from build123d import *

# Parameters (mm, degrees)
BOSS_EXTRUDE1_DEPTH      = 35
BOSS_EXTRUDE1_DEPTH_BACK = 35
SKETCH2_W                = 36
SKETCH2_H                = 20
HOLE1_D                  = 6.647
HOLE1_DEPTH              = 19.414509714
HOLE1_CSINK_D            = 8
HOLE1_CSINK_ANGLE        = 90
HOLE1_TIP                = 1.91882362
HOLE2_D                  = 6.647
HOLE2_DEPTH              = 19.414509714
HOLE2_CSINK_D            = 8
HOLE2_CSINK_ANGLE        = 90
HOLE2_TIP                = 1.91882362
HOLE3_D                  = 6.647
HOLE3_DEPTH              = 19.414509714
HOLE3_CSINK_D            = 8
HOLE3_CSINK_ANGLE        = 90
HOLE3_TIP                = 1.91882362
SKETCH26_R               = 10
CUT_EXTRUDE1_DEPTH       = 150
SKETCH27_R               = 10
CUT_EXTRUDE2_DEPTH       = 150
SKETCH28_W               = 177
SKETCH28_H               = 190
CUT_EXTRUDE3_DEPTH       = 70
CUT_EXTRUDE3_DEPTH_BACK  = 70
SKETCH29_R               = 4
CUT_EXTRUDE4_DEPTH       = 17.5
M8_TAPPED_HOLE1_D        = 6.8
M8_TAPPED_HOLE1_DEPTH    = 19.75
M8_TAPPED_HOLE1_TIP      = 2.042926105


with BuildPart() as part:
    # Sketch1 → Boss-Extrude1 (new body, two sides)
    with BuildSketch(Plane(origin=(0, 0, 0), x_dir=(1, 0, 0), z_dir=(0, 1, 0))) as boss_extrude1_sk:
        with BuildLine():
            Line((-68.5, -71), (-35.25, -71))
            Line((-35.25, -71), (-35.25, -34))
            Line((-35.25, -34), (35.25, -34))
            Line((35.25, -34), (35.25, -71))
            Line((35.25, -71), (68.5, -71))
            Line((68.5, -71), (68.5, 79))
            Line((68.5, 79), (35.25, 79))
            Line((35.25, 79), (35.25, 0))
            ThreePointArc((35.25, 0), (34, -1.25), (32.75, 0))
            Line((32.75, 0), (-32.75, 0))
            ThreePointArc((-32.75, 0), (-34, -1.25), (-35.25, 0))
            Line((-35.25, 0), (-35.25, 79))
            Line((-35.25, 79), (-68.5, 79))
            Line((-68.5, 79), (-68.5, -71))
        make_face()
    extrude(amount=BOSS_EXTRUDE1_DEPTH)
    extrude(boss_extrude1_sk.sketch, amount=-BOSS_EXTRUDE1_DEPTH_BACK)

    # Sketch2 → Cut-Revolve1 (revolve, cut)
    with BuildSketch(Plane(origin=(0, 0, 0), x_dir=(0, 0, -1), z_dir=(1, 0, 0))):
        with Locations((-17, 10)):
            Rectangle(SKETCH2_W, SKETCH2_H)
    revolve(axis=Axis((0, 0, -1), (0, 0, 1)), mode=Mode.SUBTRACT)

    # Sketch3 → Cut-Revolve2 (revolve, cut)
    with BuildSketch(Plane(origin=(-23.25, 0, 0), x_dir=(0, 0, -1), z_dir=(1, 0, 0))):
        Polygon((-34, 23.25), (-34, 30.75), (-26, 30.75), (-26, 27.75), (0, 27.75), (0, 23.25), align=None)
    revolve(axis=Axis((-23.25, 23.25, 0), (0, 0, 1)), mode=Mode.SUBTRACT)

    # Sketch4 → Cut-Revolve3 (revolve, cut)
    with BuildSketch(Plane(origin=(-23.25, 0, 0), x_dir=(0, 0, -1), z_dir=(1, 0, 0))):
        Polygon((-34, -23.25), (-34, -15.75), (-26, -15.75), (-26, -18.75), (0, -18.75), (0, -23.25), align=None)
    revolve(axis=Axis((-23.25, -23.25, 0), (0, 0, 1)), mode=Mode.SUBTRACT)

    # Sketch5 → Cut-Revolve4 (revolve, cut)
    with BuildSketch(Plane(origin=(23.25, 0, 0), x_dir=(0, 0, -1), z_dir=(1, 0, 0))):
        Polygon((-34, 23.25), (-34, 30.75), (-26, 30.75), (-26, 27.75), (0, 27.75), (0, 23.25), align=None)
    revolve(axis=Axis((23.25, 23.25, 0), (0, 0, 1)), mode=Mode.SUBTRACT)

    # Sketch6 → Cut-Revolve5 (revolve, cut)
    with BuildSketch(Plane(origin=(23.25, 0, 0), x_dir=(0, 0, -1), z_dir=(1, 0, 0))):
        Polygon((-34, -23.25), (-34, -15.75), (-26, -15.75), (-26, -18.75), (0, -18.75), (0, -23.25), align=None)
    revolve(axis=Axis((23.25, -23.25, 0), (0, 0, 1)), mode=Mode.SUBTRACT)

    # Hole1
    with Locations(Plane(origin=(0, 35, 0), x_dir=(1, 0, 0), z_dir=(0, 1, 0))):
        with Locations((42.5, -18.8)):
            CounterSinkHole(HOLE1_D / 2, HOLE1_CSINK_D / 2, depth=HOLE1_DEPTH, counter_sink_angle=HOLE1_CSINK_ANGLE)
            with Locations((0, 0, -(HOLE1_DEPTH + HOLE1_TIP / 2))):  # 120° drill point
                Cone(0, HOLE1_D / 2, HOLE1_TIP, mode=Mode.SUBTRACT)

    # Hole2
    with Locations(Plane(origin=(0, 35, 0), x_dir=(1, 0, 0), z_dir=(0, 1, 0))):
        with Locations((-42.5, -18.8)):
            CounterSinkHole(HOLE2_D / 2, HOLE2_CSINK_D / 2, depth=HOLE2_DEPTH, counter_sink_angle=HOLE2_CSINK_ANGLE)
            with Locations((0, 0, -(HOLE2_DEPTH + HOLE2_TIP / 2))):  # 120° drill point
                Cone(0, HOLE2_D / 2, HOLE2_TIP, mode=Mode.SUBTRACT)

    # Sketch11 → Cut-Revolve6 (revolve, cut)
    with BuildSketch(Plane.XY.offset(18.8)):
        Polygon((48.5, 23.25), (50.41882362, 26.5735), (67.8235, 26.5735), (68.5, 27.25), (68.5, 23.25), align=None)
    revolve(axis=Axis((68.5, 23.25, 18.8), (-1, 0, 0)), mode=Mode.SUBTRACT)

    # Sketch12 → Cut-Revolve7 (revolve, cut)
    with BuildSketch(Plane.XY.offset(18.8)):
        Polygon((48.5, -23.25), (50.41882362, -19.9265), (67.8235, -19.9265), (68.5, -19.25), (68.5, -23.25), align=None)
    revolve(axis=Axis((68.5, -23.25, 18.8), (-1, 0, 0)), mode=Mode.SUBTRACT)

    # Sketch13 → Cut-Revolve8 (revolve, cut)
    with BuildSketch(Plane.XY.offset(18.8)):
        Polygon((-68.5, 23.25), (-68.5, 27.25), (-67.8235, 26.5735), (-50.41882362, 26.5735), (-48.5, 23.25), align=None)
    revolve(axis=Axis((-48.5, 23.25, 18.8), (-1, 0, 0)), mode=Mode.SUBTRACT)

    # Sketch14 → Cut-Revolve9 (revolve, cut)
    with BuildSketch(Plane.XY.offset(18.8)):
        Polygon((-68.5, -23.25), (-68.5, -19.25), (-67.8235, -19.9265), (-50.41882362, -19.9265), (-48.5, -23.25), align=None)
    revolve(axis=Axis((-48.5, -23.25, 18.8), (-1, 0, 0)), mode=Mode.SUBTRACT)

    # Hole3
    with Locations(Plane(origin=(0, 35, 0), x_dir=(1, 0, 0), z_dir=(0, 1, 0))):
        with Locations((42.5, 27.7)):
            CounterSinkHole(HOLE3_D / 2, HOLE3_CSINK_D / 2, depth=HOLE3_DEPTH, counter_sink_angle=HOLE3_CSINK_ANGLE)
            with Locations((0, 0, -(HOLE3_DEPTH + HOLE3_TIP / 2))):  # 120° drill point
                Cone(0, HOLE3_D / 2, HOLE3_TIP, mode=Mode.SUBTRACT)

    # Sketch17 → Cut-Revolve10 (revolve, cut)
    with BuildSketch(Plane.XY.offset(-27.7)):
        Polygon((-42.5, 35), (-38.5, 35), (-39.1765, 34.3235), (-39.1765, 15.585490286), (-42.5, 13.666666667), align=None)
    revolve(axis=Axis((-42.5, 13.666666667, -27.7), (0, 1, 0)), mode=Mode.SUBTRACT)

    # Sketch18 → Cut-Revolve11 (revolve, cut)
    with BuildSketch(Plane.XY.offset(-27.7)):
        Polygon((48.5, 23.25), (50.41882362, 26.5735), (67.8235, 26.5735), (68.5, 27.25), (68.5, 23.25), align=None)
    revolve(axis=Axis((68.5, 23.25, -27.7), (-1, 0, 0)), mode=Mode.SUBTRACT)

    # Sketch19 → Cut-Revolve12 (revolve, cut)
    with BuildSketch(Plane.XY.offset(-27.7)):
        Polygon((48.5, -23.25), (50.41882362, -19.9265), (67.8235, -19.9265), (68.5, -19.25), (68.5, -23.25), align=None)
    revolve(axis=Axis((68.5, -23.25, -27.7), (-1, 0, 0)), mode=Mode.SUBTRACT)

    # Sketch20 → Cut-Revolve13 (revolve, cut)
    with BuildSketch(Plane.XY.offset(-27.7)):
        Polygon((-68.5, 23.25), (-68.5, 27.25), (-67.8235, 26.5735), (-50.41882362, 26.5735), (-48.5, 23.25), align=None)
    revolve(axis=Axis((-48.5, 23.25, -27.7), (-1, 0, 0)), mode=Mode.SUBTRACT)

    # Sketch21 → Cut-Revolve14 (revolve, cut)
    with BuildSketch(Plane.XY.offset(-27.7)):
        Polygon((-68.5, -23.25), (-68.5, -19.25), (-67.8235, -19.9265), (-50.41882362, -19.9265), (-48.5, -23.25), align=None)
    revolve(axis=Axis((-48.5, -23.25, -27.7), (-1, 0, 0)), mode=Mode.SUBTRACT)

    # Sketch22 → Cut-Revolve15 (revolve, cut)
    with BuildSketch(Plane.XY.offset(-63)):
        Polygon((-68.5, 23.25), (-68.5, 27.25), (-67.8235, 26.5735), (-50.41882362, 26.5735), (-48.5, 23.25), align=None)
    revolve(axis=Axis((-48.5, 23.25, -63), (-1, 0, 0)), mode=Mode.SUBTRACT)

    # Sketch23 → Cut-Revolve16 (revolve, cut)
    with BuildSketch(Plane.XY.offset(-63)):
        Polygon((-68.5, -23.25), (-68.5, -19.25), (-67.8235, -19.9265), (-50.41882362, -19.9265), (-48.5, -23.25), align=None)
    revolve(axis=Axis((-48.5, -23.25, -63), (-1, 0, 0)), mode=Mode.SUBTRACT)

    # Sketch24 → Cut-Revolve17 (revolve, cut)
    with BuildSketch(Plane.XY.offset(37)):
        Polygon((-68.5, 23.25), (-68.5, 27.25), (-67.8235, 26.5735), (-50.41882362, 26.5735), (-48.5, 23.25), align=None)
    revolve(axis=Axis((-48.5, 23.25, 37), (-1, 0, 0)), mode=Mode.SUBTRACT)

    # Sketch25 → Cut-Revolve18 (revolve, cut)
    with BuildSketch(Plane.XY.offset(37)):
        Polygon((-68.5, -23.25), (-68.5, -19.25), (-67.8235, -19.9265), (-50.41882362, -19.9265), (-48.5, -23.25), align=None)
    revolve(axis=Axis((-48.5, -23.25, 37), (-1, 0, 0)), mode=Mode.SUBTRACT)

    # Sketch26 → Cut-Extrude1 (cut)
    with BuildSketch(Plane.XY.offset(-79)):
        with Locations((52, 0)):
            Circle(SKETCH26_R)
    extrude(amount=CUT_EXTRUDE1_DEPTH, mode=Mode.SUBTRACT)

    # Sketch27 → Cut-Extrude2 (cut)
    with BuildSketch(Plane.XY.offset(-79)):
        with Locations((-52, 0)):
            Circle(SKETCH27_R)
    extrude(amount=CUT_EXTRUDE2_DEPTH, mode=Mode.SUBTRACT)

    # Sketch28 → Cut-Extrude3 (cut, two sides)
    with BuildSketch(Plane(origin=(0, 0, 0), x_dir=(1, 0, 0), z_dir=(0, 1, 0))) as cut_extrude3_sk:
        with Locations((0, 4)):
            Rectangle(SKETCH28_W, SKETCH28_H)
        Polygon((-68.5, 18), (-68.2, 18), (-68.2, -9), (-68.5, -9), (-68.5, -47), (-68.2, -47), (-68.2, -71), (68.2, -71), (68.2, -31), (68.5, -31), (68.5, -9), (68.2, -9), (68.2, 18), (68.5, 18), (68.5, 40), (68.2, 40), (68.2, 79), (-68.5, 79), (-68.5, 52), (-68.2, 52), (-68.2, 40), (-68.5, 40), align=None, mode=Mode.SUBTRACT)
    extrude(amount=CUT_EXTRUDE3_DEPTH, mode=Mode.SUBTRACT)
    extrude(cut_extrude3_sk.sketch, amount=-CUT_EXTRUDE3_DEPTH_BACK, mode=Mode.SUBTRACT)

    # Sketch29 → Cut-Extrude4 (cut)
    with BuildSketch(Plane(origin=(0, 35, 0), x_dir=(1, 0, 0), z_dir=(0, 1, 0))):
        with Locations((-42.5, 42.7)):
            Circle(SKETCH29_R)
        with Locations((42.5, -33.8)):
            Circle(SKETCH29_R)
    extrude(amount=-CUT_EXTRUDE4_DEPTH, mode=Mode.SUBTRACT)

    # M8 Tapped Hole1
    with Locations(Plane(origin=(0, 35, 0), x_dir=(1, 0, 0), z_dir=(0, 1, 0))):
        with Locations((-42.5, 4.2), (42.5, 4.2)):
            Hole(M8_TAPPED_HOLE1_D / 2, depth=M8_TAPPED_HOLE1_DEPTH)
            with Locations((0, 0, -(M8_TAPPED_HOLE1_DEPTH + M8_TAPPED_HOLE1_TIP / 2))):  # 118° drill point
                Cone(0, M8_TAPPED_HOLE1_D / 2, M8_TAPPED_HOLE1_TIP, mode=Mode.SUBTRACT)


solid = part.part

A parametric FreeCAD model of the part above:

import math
import FreeCAD as App
import Part
import Sketcher
Q = App.Units.Quantity


def add_polygon(sketch, points):
    """Adds a closed chain of lines whose ends are joined by coincident constraints."""
    first, n = sketch.GeometryCount, len(points)
    for a, b in zip(points, points[1:] + points[:1]):
        sketch.addGeometry(Part.LineSegment(App.Vector(*a, 0), App.Vector(*b, 0)), False)
    for i in range(n):
        sketch.addConstraint(Sketcher.Constraint("Coincident", first + i, 2, first + (i + 1) % n, 1))

doc = App.newDocument("Part")
body = doc.addObject("PartDesign::Body", "Body")

sketch1 = body.newObject("Sketcher::SketchObject", "Sketch")
sketch1.AttachmentSupport = (doc.getObject("XZ_Plane"), [""])
sketch1.MapMode = "FlatFace"
sketch1.addGeometry([
    Part.LineSegment(App.Vector(-68.5, 71, 0), App.Vector(-35.2, 71, 0)),
    Part.LineSegment(App.Vector(-35.2, 71, 0), App.Vector(-35.2, 34, 0)),
    Part.LineSegment(App.Vector(-35.2, 34, 0), App.Vector(35.2, 34, 0)),
    Part.LineSegment(App.Vector(35.2, 34, 0), App.Vector(35.2, 71, 0)),
    Part.LineSegment(App.Vector(35.2, 71, 0), App.Vector(68.5, 71, 0)),
    Part.LineSegment(App.Vector(68.5, 71, 0), App.Vector(68.5, -79, 0)),
    Part.LineSegment(App.Vector(68.5, -79, 0), App.Vector(35.2, -79, 0)),
    Part.LineSegment(App.Vector(35.2, -79, 0), App.Vector(35.2, 0, 0)),
    Part.ArcOfCircle(Part.Circle(App.Vector(34, 0, 0), App.Vector(0, 0, 1), 1.2), math.radians(0), math.radians(180)),
    Part.LineSegment(App.Vector(32.8, 0, 0), App.Vector(-32.8, 0, 0)),
    Part.ArcOfCircle(Part.Circle(App.Vector(-34, 0, 0), App.Vector(0, 0, 1), 1.2), math.radians(0), math.radians(180)),
    Part.LineSegment(App.Vector(-35.2, 0, 0), App.Vector(-35.2, -79, 0)),
    Part.LineSegment(App.Vector(-35.2, -79, 0), App.Vector(-68.5, -79, 0)),
    Part.LineSegment(App.Vector(-68.5, -79, 0), App.Vector(-68.5, 71, 0)),
], False)
sketch1.addConstraint([
    Sketcher.Constraint("Coincident", 0, 2, 1, 1),
    Sketcher.Constraint("Coincident", 1, 2, 2, 1),
    Sketcher.Constraint("Coincident", 2, 2, 3, 1),
    Sketcher.Constraint("Coincident", 3, 2, 4, 1),
    Sketcher.Constraint("Coincident", 4, 2, 5, 1),
    Sketcher.Constraint("Coincident", 5, 2, 6, 1),
    Sketcher.Constraint("Coincident", 6, 2, 7, 1),
    Sketcher.Constraint("Tangent", 7, 2, 8, 1),
    Sketcher.Constraint("Coincident", 8, 2, 9, 1),
    Sketcher.Constraint("Coincident", 9, 2, 10, 1),
    Sketcher.Constraint("Tangent", 10, 2, 11, 1),
    Sketcher.Constraint("Coincident", 11, 2, 12, 1),
    Sketcher.Constraint("Coincident", 12, 2, 13, 1),
    Sketcher.Constraint("Coincident", 13, 2, 0, 1),
    Sketcher.Constraint("Horizontal", 0),
    Sketcher.Constraint("Vertical", 1),
    Sketcher.Constraint("Horizontal", 2),
    Sketcher.Constraint("Vertical", 3),
    Sketcher.Constraint("Horizontal", 4),
    Sketcher.Constraint("Vertical", 5),
    Sketcher.Constraint("Horizontal", 6),
    Sketcher.Constraint("Vertical", 7),
    Sketcher.Constraint("Horizontal", 9),
    Sketcher.Constraint("Vertical", 11),
    Sketcher.Constraint("Horizontal", 12),
    Sketcher.Constraint("Vertical", 13),
    Sketcher.Constraint("Equal", 8, 10),
    Sketcher.Constraint("Symmetric", 8, 3, 10, 3, -1, 1),
    Sketcher.Constraint("Symmetric", 0, 2, 3, 2, -2),
    Sketcher.Constraint("Symmetric", 5, 2, 12, 2, -2),
    Sketcher.Constraint("PointOnObject", 8, 3, -1),
    Sketcher.Constraint("PointOnObject", 8, 2, -1),
    Sketcher.Constraint("Vertical", 3, 2, 6, 2),
    Sketcher.Constraint("DistanceY", 1, 2, 1, 1, 37.0),
    Sketcher.Constraint("DistanceY", 5, 2, 5, 1, 150.0),
    Sketcher.Constraint("DistanceY", 7, 1, 7, 2, 79.0),
    Sketcher.Constraint("Radius", 8, 1.25),
    Sketcher.Constraint("DistanceX", 2, 1, 2, 2, 70.5),
    Sketcher.Constraint("DistanceX", 0, 1, 0, 2, 33.25),
])
pad1 = body.newObject("PartDesign::Pad", "Pad")
pad1.Profile = sketch1
pad1.Type = "TwoLengths"
pad1.Length = 35
pad1.Length2 = 35
pad1.Reversed = True

sketch2 = body.newObject("Sketcher::SketchObject", "Sketch001")
sketch2.AttachmentSupport = (doc.getObject("YZ_Plane"), [""])
sketch2.MapMode = "FlatFace"
add_polygon(sketch2, [(20, 35), (0, 35), (0, -1), (20, -1)])
sketch2.addConstraint([
    Sketcher.Constraint("Horizontal", 0),
    Sketcher.Constraint("Vertical", 1),
    Sketcher.Constraint("Horizontal", 2),
    Sketcher.Constraint("Vertical", 3),
    Sketcher.Constraint("PointOnObject", 0, 2, -2),
    Sketcher.Constraint("DistanceX", 0, 2, 0, 1, 20.0),
    Sketcher.Constraint("DistanceY", 1, 2, 1, 1, 36.0),
    Sketcher.Constraint("DistanceY", -1, 1, 0, 2, 35.0),
])
groove = body.newObject("PartDesign::Groove", "Groove")
groove.Profile = sketch2
groove.ReferenceAxis = (sketch2, ["V_Axis"])
groove.Angle = 360

sketch3 = body.newObject("Sketcher::SketchObject", "Sketch002")
sketch3.AttachmentSupport = (doc.getObject("YZ_Plane"), [""])
sketch3.MapMode = "FlatFace"
sketch3.AttachmentOffset = App.Placement(App.Vector(0, 0, -23.25), App.Rotation())
add_polygon(sketch3, [(30.8, 34), (23.2, 34), (23.2, 0), (27.8, 0), (27.8, 26), (30.8, 26)])
sketch3.addGeometry(Part.LineSegment(App.Vector(23.2, 0, 0), App.Vector(23.2, 34, 0)), True)
sketch3.addConstraint([
    Sketcher.Constraint("Horizontal", 0),
    Sketcher.Constraint("Vertical", 1),
    Sketcher.Constraint("Horizontal", 2),
    Sketcher.Constraint("Vertical", 3),
    Sketcher.Constraint("Horizontal", 4),
    Sketcher.Constraint("Vertical", 5),
    Sketcher.Constraint("Vertical", 6),
    Sketcher.Constraint("Coincident", 6, 1, 1, 2),
    Sketcher.Constraint("PointOnObject", 1, 2, -1),
    Sketcher.Constraint("Horizontal", 5, 2, 6, 2),
    Sketcher.Constraint("DistanceX", 4, 1, 4, 2, 3.0),
    Sketcher.Constraint("DistanceY", 1, 2, 1, 1, 34.0),
    Sketcher.Constraint("DistanceY", 3, 1, 3, 2, 26.0),
    Sketcher.Constraint("DistanceX", 0, 2, 0, 1, 7.5),
    Sketcher.Constraint("DistanceX", -1, 1, 0, 2, 23.25),
])
groove2 = body.newObject("PartDesign::Groove", "Groove001")
groove2.Profile = sketch3
groove2.ReferenceAxis = (sketch3, ["Axis0"])
groove2.Angle = 360

sketch4 = body.newObject("Sketcher::SketchObject", "Sketch003")
sketch4.AttachmentSupport = (doc.getObject("YZ_Plane"), [""])
sketch4.MapMode = "FlatFace"
sketch4.AttachmentOffset = App.Placement(App.Vector(0, 0, -23.25), App.Rotation())
add_polygon(sketch4, [(-15.8, 34), (-23.2, 34), (-23.2, 0), (-18.8, 0), (-18.8, 26), (-15.8, 26)])
sketch4.addGeometry(Part.LineSegment(App.Vector(-23.2, 0, 0), App.Vector(-23.2, 34, 0)), True)
sketch4.addConstraint([
    Sketcher.Constraint("Horizontal", 0),
    Sketcher.Constraint("Vertical", 1),
    Sketcher.Constraint("Horizontal", 2),
    Sketcher.Constraint("Vertical", 3),
    Sketcher.Constraint("Horizontal", 4),
    Sketcher.Constraint("Vertical", 5),
    Sketcher.Constraint("Vertical", 6),
    Sketcher.Constraint("Coincident", 6, 1, 1, 2),
    Sketcher.Constraint("PointOnObject", 1, 2, -1),
    Sketcher.Constraint("Horizontal", 5, 2, 6, 2),
    Sketcher.Constraint("DistanceX", 4, 1, 4, 2, 3.0),
    Sketcher.Constraint("DistanceY", 1, 2, 1, 1, 34.0),
    Sketcher.Constraint("DistanceY", 3, 1, 3, 2, 26.0),
    Sketcher.Constraint("DistanceX", 0, 2, 0, 1, 7.5),
    Sketcher.Constraint("DistanceX", 0, 2, -1, 1, 23.25),
])
groove3 = body.newObject("PartDesign::Groove", "Groove002")
groove3.Profile = sketch4
groove3.ReferenceAxis = (sketch4, ["Axis0"])
groove3.Angle = 360

sketch5 = body.newObject("Sketcher::SketchObject", "Sketch004")
sketch5.AttachmentSupport = (doc.getObject("YZ_Plane"), [""])
sketch5.MapMode = "FlatFace"
sketch5.AttachmentOffset = App.Placement(App.Vector(0, 0, 23.25), App.Rotation())
add_polygon(sketch5, [(30.8, 34), (23.2, 34), (23.2, 0), (27.8, 0), (27.8, 26), (30.8, 26)])
sketch5.addGeometry(Part.LineSegment(App.Vector(23.2, 0, 0), App.Vector(23.2, 34, 0)), True)
sketch5.addConstraint([
    Sketcher.Constraint("Horizontal", 0),
    Sketcher.Constraint("Vertical", 1),
    Sketcher.Constraint("Horizontal", 2),
    Sketcher.Constraint("Vertical", 3),
    Sketcher.Constraint("Horizontal", 4),
    Sketcher.Constraint("Vertical", 5),
    Sketcher.Constraint("Vertical", 6),
    Sketcher.Constraint("Coincident", 6, 1, 1, 2),
    Sketcher.Constraint("PointOnObject", 1, 2, -1),
    Sketcher.Constraint("Horizontal", 5, 2, 6, 2),
    Sketcher.Constraint("DistanceX", 4, 1, 4, 2, 3.0),
    Sketcher.Constraint("DistanceY", 1, 2, 1, 1, 34.0),
    Sketcher.Constraint("DistanceY", 3, 1, 3, 2, 26.0),
    Sketcher.Constraint("DistanceX", 0, 2, 0, 1, 7.5),
    Sketcher.Constraint("DistanceX", -1, 1, 0, 2, 23.25),
])
groove4 = body.newObject("PartDesign::Groove", "Groove003")
groove4.Profile = sketch5
groove4.ReferenceAxis = (sketch5, ["Axis0"])
groove4.Angle = 360

sketch6 = body.newObject("Sketcher::SketchObject", "Sketch005")
sketch6.AttachmentSupport = (doc.getObject("YZ_Plane"), [""])
sketch6.MapMode = "FlatFace"
sketch6.AttachmentOffset = App.Placement(App.Vector(0, 0, 23.25), App.Rotation())
add_polygon(sketch6, [(-15.8, 34), (-23.2, 34), (-23.2, 0), (-18.8, 0), (-18.8, 26), (-15.8, 26)])
sketch6.addGeometry(Part.LineSegment(App.Vector(-23.2, 0, 0), App.Vector(-23.2, 34, 0)), True)
sketch6.addConstraint([
    Sketcher.Constraint("Horizontal", 0),
    Sketcher.Constraint("Vertical", 1),
    Sketcher.Constraint("Horizontal", 2),
    Sketcher.Constraint("Vertical", 3),
    Sketcher.Constraint("Horizontal", 4),
    Sketcher.Constraint("Vertical", 5),
    Sketcher.Constraint("Vertical", 6),
    Sketcher.Constraint("Coincident", 6, 1, 1, 2),
    Sketcher.Constraint("PointOnObject", 1, 2, -1),
    Sketcher.Constraint("Horizontal", 5, 2, 6, 2),
    Sketcher.Constraint("DistanceX", 4, 1, 4, 2, 3.0),
    Sketcher.Constraint("DistanceY", 1, 2, 1, 1, 34.0),
    Sketcher.Constraint("DistanceY", 3, 1, 3, 2, 26.0),
    Sketcher.Constraint("DistanceX", 0, 2, 0, 1, 7.5),
    Sketcher.Constraint("DistanceX", 0, 2, -1, 1, 23.25),
])
groove5 = body.newObject("PartDesign::Groove", "Groove004")
groove5.Profile = sketch6
groove5.ReferenceAxis = (sketch6, ["Axis0"])
groove5.Angle = 360

sketch7 = body.newObject("Sketcher::SketchObject", "Sketch006")
sketch7.AttachmentSupport = (doc.getObject("XZ_Plane"), [""])
sketch7.MapMode = "FlatFace"
sketch7.AttachmentOffset = App.Placement(App.Vector(0, 0, -35), App.Rotation())
sketch7.addGeometry(Part.Circle(App.Vector(42.5, 18.8, 0), App.Vector(0, 0, 1), 3.3), False)
sketch7.addConstraint([
    Sketcher.Constraint("Diameter", 0, 6.647),
    Sketcher.Constraint("DistanceX", -1, 1, 0, 3, 42.5),
    Sketcher.Constraint("DistanceY", -1, 1, 0, 3, 18.8),
])
doc.recompute()
hole = body.newObject("PartDesign::Hole", "Hole")
hole.Profile = sketch7
hole.ThreadType = "None"
hole.Diameter = 6.647
hole.DepthType = "Dimension"
hole.Depth = 19.41451
hole.DrillPoint = "Angled"
hole.DrillPointAngle = 120
hole.HoleCutType = "Countersink"
hole.HoleCutDiameter = 8
hole.HoleCutCountersinkAngle = 90
hole.Reversed = True

sketch8 = body.newObject("Sketcher::SketchObject", "Sketch007")
sketch8.AttachmentSupport = (doc.getObject("XZ_Plane"), [""])
sketch8.MapMode = "FlatFace"
sketch8.AttachmentOffset = App.Placement(App.Vector(0, 0, -35), App.Rotation())
sketch8.addGeometry(Part.Circle(App.Vector(-42.5, 18.8, 0), App.Vector(0, 0, 1), 3.3), False)
sketch8.addConstraint([
    Sketcher.Constraint("Diameter", 0, 6.647),
    Sketcher.Constraint("DistanceX", 0, 3, -1, 1, 42.5),
    Sketcher.Constraint("DistanceY", -1, 1, 0, 3, 18.8),
])
doc.recompute()
hole2 = body.newObject("PartDesign::Hole", "Hole001")
hole2.Profile = sketch8
hole2.ThreadType = "None"
hole2.Diameter = 6.647
hole2.DepthType = "Dimension"
hole2.Depth = 19.41451
hole2.DrillPoint = "Angled"
hole2.DrillPointAngle = 120
hole2.HoleCutType = "Countersink"
hole2.HoleCutDiameter = 8
hole2.HoleCutCountersinkAngle = 90
hole2.Reversed = True

sketch9 = body.newObject("Sketcher::SketchObject", "Sketch008")
sketch9.AttachmentSupport = (doc.getObject("XY_Plane"), [""])
sketch9.MapMode = "FlatFace"
sketch9.AttachmentOffset = App.Placement(App.Vector(0, 0, 18.8), App.Rotation())
add_polygon(sketch9, [(50.4, 26.6), (48.5, 23.2), (68.5, 23.2), (68.5, 27.2), (67.8, 26.6)])
sketch9.addGeometry(Part.LineSegment(App.Vector(68.5, 23.2, 0), App.Vector(48.5, 23.2, 0)), True)
sketch9.addConstraint([
    Sketcher.Constraint("Horizontal", 1),
    Sketcher.Constraint("Vertical", 2),
    Sketcher.Constraint("Horizontal", 4),
    Sketcher.Constraint("Horizontal", 5),
    Sketcher.Constraint("Coincident", 5, 1, 1, 2),
    Sketcher.Constraint("Equal", 1, 5),
    Sketcher.Constraint("DistanceX", 1, 1, 1, 2, 20.0),
    Sketcher.Constraint("DistanceY", 2, 1, 2, 2, 4.0),
    Sketcher.Constraint("Angle", 0, Q("-120 deg")),
    Sketcher.Constraint("Angle", 3, Q("-135 deg")),
    Sketcher.Constraint("DistanceX", -1, 1, 0, 2, 48.5),
    Sketcher.Constraint("DistanceY", -1, 1, 0, 2, 23.25),
    Sketcher.Constraint("DistanceX", -1, 1, 3, 2, 67.8235),
])
groove6 = body.newObject("PartDesign::Groove", "Groove005")
groove6.Profile = sketch9
groove6.ReferenceAxis = (sketch9, ["Axis0"])
groove6.Angle = 360

sketch10 = body.newObject("Sketcher::SketchObject", "Sketch009")
sketch10.AttachmentSupport = (doc.getObject("XY_Plane"), [""])
sketch10.MapMode = "FlatFace"
sketch10.AttachmentOffset = App.Placement(App.Vector(0, 0, 18.8), App.Rotation())
add_polygon(sketch10, [(50.4, -19.9), (48.5, -23.2), (68.5, -23.2), (68.5, -19.2), (67.8, -19.9)])
sketch10.addGeometry(Part.LineSegment(App.Vector(68.5, -23.2, 0), App.Vector(48.5, -23.2, 0)), True)
sketch10.addConstraint([
    Sketcher.Constraint("Horizontal", 1),
    Sketcher.Constraint("Vertical", 2),
    Sketcher.Constraint("Horizontal", 4),
    Sketcher.Constraint("Horizontal", 5),
    Sketcher.Constraint("Coincident", 5, 1, 1, 2),
    Sketcher.Constraint("Equal", 1, 5),
    Sketcher.Constraint("DistanceX", 1, 1, 1, 2, 20.0),
    Sketcher.Constraint("DistanceY", 2, 1, 2, 2, 4.0),
    Sketcher.Constraint("Angle", 0, Q("-120 deg")),
    Sketcher.Constraint("Angle", 3, Q("-135 deg")),
    Sketcher.Constraint("DistanceX", -1, 1, 0, 2, 48.5),
    Sketcher.Constraint("DistanceY", 0, 2, -1, 1, 23.25),
    Sketcher.Constraint("DistanceX", -1, 1, 3, 2, 67.8235),
])
groove7 = body.newObject("PartDesign::Groove", "Groove006")
groove7.Profile = sketch10
groove7.ReferenceAxis = (sketch10, ["Axis0"])
groove7.Angle = 360

sketch11 = body.newObject("Sketcher::SketchObject", "Sketch010")
sketch11.AttachmentSupport = (doc.getObject("XY_Plane"), [""])
sketch11.MapMode = "FlatFace"
sketch11.AttachmentOffset = App.Placement(App.Vector(0, 0, 18.8), App.Rotation())
add_polygon(sketch11, [(-68.5, 27.2), (-68.5, 23.2), (-48.5, 23.2), (-50.4, 26.6), (-67.8, 26.6)])
sketch11.addGeometry(Part.LineSegment(App.Vector(-48.5, 23.2, 0), App.Vector(-68.5, 23.2, 0)), True)
sketch11.addConstraint([
    Sketcher.Constraint("Vertical", 0),
    Sketcher.Constraint("Horizontal", 1),
    Sketcher.Constraint("Horizontal", 3),
    Sketcher.Constraint("Horizontal", 5),
    Sketcher.Constraint("Coincident", 5, 1, 1, 2),
    Sketcher.Constraint("Vertical", 4, 2, 5, 2),
    Sketcher.Constraint("DistanceX", 1, 1, 1, 2, 20.0),
    Sketcher.Constraint("DistanceY", 0, 2, 0, 1, 4.0),
    Sketcher.Constraint("Angle", 2, Q("120 deg")),
    Sketcher.Constraint("Angle", 4, Q("135 deg")),
    Sketcher.Constraint("DistanceX", 0, 2, -1, 1, 68.5),
    Sketcher.Constraint("DistanceY", -1, 1, 0, 2, 23.25),
    Sketcher.Constraint("DistanceY", -1, 1, 2, 2, 26.5735),
])
groove8 = body.newObject("PartDesign::Groove", "Groove007")
groove8.Profile = sketch11
groove8.ReferenceAxis = (sketch11, ["Axis0"])
groove8.Angle = 360

sketch12 = body.newObject("Sketcher::SketchObject", "Sketch011")
sketch12.AttachmentSupport = (doc.getObject("XY_Plane"), [""])
sketch12.MapMode = "FlatFace"
sketch12.AttachmentOffset = App.Placement(App.Vector(0, 0, 18.8), App.Rotation())
add_polygon(sketch12, [(-68.5, -19.2), (-68.5, -23.2), (-48.5, -23.2), (-50.4, -19.9), (-67.8, -19.9)])
sketch12.addGeometry(Part.LineSegment(App.Vector(-48.5, -23.2, 0), App.Vector(-68.5, -23.2, 0)), True)
sketch12.addConstraint([
    Sketcher.Constraint("Vertical", 0),
    Sketcher.Constraint("Horizontal", 1),
    Sketcher.Constraint("Horizontal", 3),
    Sketcher.Constraint("Horizontal", 5),
    Sketcher.Constraint("Coincident", 5, 1, 1, 2),
    Sketcher.Constraint("Vertical", 4, 2, 5, 2),
    Sketcher.Constraint("DistanceX", 1, 1, 1, 2, 20.0),
    Sketcher.Constraint("DistanceY", 0, 2, 0, 1, 4.0),
    Sketcher.Constraint("Angle", 2, Q("120 deg")),
    Sketcher.Constraint("Angle", 4, Q("135 deg")),
    Sketcher.Constraint("DistanceX", 0, 2, -1, 1, 68.5),
    Sketcher.Constraint("DistanceY", 0, 2, -1, 1, 23.25),
    Sketcher.Constraint("DistanceY", 2, 2, -1, 1, 19.9265),
])
groove9 = body.newObject("PartDesign::Groove", "Groove008")
groove9.Profile = sketch12
groove9.ReferenceAxis = (sketch12, ["Axis0"])
groove9.Angle = 360

sketch13 = body.newObject("Sketcher::SketchObject", "Sketch012")
sketch13.AttachmentSupport = (doc.getObject("XZ_Plane"), [""])
sketch13.MapMode = "FlatFace"
sketch13.AttachmentOffset = App.Placement(App.Vector(0, 0, -35), App.Rotation())
sketch13.addGeometry(Part.Circle(App.Vector(42.5, -27.7, 0), App.Vector(0, 0, 1), 3.3), False)
sketch13.addConstraint([
    Sketcher.Constraint("Diameter", 0, 6.647),
    Sketcher.Constraint("DistanceX", -1, 1, 0, 3, 42.5),
    Sketcher.Constraint("DistanceY", 0, 3, -1, 1, 27.7),
])
doc.recompute()
hole3 = body.newObject("PartDesign::Hole", "Hole002")
hole3.Profile = sketch13
hole3.ThreadType = "None"
hole3.Diameter = 6.647
hole3.DepthType = "Dimension"
hole3.Depth = 19.41451
hole3.DrillPoint = "Angled"
hole3.DrillPointAngle = 120
hole3.HoleCutType = "Countersink"
hole3.HoleCutDiameter = 8
hole3.HoleCutCountersinkAngle = 90
hole3.Reversed = True

sketch14 = body.newObject("Sketcher::SketchObject", "Sketch013")
sketch14.AttachmentSupport = (doc.getObject("XY_Plane"), [""])
sketch14.MapMode = "FlatFace"
sketch14.AttachmentOffset = App.Placement(App.Vector(0, 0, -27.7), App.Rotation())
add_polygon(sketch14, [(-38.5, 35), (-42.5, 35), (-42.5, 13.7), (-39.2, 15.6), (-39.2, 34.3)])
sketch14.addGeometry(Part.LineSegment(App.Vector(-42.5, 13.7, 0), App.Vector(-42.5, 35, 0)), True)
sketch14.addConstraint([
    Sketcher.Constraint("Horizontal", 0),
    Sketcher.Constraint("Vertical", 1),
    Sketcher.Constraint("Vertical", 3),
    Sketcher.Constraint("Vertical", 5),
    Sketcher.Constraint("Coincident", 5, 1, 1, 2),
    Sketcher.Constraint("Horizontal", 4, 2, 5, 2),
    Sketcher.Constraint("DistanceX", 0, 2, 0, 1, 4.0),
    Sketcher.Constraint("Angle", 2, Q("30 deg")),
    Sketcher.Constraint("Angle", 4, Q("45 deg")),
    Sketcher.Constraint("DistanceY", -1, 1, 0, 2, 35.0),
    Sketcher.Constraint("DistanceX", 0, 2, -1, 1, 42.5),
    Sketcher.Constraint("DistanceY", 3, 1, 3, 2, 18.73801),
    Sketcher.Constraint("DistanceX", 2, 2, -1, 1, 39.1765),
])
groove10 = body.newObject("PartDesign::Groove", "Groove009")
groove10.Profile = sketch14
groove10.ReferenceAxis = (sketch14, ["Axis0"])
groove10.Angle = 360

sketch15 = body.newObject("Sketcher::SketchObject", "Sketch014")
sketch15.AttachmentSupport = (doc.getObject("XY_Plane"), [""])
sketch15.MapMode = "FlatFace"
sketch15.AttachmentOffset = App.Placement(App.Vector(0, 0, -27.7), App.Rotation())
add_polygon(sketch15, [(50.4, 26.6), (48.5, 23.2), (68.5, 23.2), (68.5, 27.2), (67.8, 26.6)])
sketch15.addGeometry(Part.LineSegment(App.Vector(68.5, 23.2, 0), App.Vector(48.5, 23.2, 0)), True)
sketch15.addConstraint([
    Sketcher.Constraint("Horizontal", 1),
    Sketcher.Constraint("Vertical", 2),
    Sketcher.Constraint("Horizontal", 4),
    Sketcher.Constraint("Horizontal", 5),
    Sketcher.Constraint("Coincident", 5, 1, 1, 2),
    Sketcher.Constraint("Equal", 1, 5),
    Sketcher.Constraint("DistanceX", 1, 1, 1, 2, 20.0),
    Sketcher.Constraint("DistanceY", 2, 1, 2, 2, 4.0),
    Sketcher.Constraint("Angle", 0, Q("-120 deg")),
    Sketcher.Constraint("Angle", 3, Q("-135 deg")),
    Sketcher.Constraint("DistanceX", -1, 1, 0, 2, 48.5),
    Sketcher.Constraint("DistanceY", -1, 1, 0, 2, 23.25),
    Sketcher.Constraint("DistanceX", -1, 1, 3, 2, 67.8235),
])
groove11 = body.newObject("PartDesign::Groove", "Groove010")
groove11.Profile = sketch15
groove11.ReferenceAxis = (sketch15, ["Axis0"])
groove11.Angle = 360

sketch16 = body.newObject("Sketcher::SketchObject", "Sketch015")
sketch16.AttachmentSupport = (doc.getObject("XY_Plane"), [""])
sketch16.MapMode = "FlatFace"
sketch16.AttachmentOffset = App.Placement(App.Vector(0, 0, -27.7), App.Rotation())
add_polygon(sketch16, [(50.4, -19.9), (48.5, -23.2), (68.5, -23.2), (68.5, -19.2), (67.8, -19.9)])
sketch16.addGeometry(Part.LineSegment(App.Vector(68.5, -23.2, 0), App.Vector(48.5, -23.2, 0)), True)
sketch16.addConstraint([
    Sketcher.Constraint("Horizontal", 1),
    Sketcher.Constraint("Vertical", 2),
    Sketcher.Constraint("Horizontal", 4),
    Sketcher.Constraint("Horizontal", 5),
    Sketcher.Constraint("Coincident", 5, 1, 1, 2),
    Sketcher.Constraint("Equal", 1, 5),
    Sketcher.Constraint("DistanceX", 1, 1, 1, 2, 20.0),
    Sketcher.Constraint("DistanceY", 2, 1, 2, 2, 4.0),
    Sketcher.Constraint("Angle", 0, Q("-120 deg")),
    Sketcher.Constraint("Angle", 3, Q("-135 deg")),
    Sketcher.Constraint("DistanceX", -1, 1, 0, 2, 48.5),
    Sketcher.Constraint("DistanceY", 0, 2, -1, 1, 23.25),
    Sketcher.Constraint("DistanceX", -1, 1, 3, 2, 67.8235),
])
groove12 = body.newObject("PartDesign::Groove", "Groove011")
groove12.Profile = sketch16
groove12.ReferenceAxis = (sketch16, ["Axis0"])
groove12.Angle = 360

sketch17 = body.newObject("Sketcher::SketchObject", "Sketch016")
sketch17.AttachmentSupport = (doc.getObject("XY_Plane"), [""])
sketch17.MapMode = "FlatFace"
sketch17.AttachmentOffset = App.Placement(App.Vector(0, 0, -27.7), App.Rotation())
add_polygon(sketch17, [(-68.5, 27.2), (-68.5, 23.2), (-48.5, 23.2), (-50.4, 26.6), (-67.8, 26.6)])
sketch17.addGeometry(Part.LineSegment(App.Vector(-48.5, 23.2, 0), App.Vector(-68.5, 23.2, 0)), True)
sketch17.addConstraint([
    Sketcher.Constraint("Vertical", 0),
    Sketcher.Constraint("Horizontal", 1),
    Sketcher.Constraint("Horizontal", 3),
    Sketcher.Constraint("Horizontal", 5),
    Sketcher.Constraint("Coincident", 5, 1, 1, 2),
    Sketcher.Constraint("Vertical", 4, 2, 5, 2),
    Sketcher.Constraint("DistanceX", 1, 1, 1, 2, 20.0),
    Sketcher.Constraint("DistanceY", 0, 2, 0, 1, 4.0),
    Sketcher.Constraint("Angle", 2, Q("120 deg")),
    Sketcher.Constraint("Angle", 4, Q("135 deg")),
    Sketcher.Constraint("DistanceX", 0, 2, -1, 1, 68.5),
    Sketcher.Constraint("DistanceY", -1, 1, 0, 2, 23.25),
    Sketcher.Constraint("DistanceY", -1, 1, 2, 2, 26.5735),
])
groove13 = body.newObject("PartDesign::Groove", "Groove012")
groove13.Profile = sketch17
groove13.ReferenceAxis = (sketch17, ["Axis0"])
groove13.Angle = 360

sketch18 = body.newObject("Sketcher::SketchObject", "Sketch017")
sketch18.AttachmentSupport = (doc.getObject("XY_Plane"), [""])
sketch18.MapMode = "FlatFace"
sketch18.AttachmentOffset = App.Placement(App.Vector(0, 0, -27.7), App.Rotation())
add_polygon(sketch18, [(-68.5, -19.2), (-68.5, -23.2), (-48.5, -23.2), (-50.4, -19.9), (-67.8, -19.9)])
sketch18.addGeometry(Part.LineSegment(App.Vector(-48.5, -23.2, 0), App.Vector(-68.5, -23.2, 0)), True)
sketch18.addConstraint([
    Sketcher.Constraint("Vertical", 0),
    Sketcher.Constraint("Horizontal", 1),
    Sketcher.Constraint("Horizontal", 3),
    Sketcher.Constraint("Horizontal", 5),
    Sketcher.Constraint("Coincident", 5, 1, 1, 2),
    Sketcher.Constraint("Vertical", 4, 2, 5, 2),
    Sketcher.Constraint("DistanceX", 1, 1, 1, 2, 20.0),
    Sketcher.Constraint("DistanceY", 0, 2, 0, 1, 4.0),
    Sketcher.Constraint("Angle", 2, Q("120 deg")),
    Sketcher.Constraint("Angle", 4, Q("135 deg")),
    Sketcher.Constraint("DistanceX", 0, 2, -1, 1, 68.5),
    Sketcher.Constraint("DistanceY", 0, 2, -1, 1, 23.25),
    Sketcher.Constraint("DistanceY", 2, 2, -1, 1, 19.9265),
])
groove14 = body.newObject("PartDesign::Groove", "Groove013")
groove14.Profile = sketch18
groove14.ReferenceAxis = (sketch18, ["Axis0"])
groove14.Angle = 360

sketch19 = body.newObject("Sketcher::SketchObject", "Sketch018")
sketch19.AttachmentSupport = (doc.getObject("XY_Plane"), [""])
sketch19.MapMode = "FlatFace"
sketch19.AttachmentOffset = App.Placement(App.Vector(0, 0, -63), App.Rotation())
add_polygon(sketch19, [(-68.5, 27.2), (-68.5, 23.2), (-48.5, 23.2), (-50.4, 26.6), (-67.8, 26.6)])
sketch19.addGeometry(Part.LineSegment(App.Vector(-48.5, 23.2, 0), App.Vector(-68.5, 23.2, 0)), True)
sketch19.addConstraint([
    Sketcher.Constraint("Vertical", 0),
    Sketcher.Constraint("Horizontal", 1),
    Sketcher.Constraint("Horizontal", 3),
    Sketcher.Constraint("Horizontal", 5),
    Sketcher.Constraint("Coincident", 5, 1, 1, 2),
    Sketcher.Constraint("Vertical", 4, 2, 5, 2),
    Sketcher.Constraint("DistanceX", 1, 1, 1, 2, 20.0),
    Sketcher.Constraint("DistanceY", 0, 2, 0, 1, 4.0),
    Sketcher.Constraint("Angle", 2, Q("120 deg")),
    Sketcher.Constraint("Angle", 4, Q("135 deg")),
    Sketcher.Constraint("DistanceX", 0, 2, -1, 1, 68.5),
    Sketcher.Constraint("DistanceY", -1, 1, 0, 2, 23.25),
    Sketcher.Constraint("DistanceY", -1, 1, 2, 2, 26.5735),
])
groove15 = body.newObject("PartDesign::Groove", "Groove014")
groove15.Profile = sketch19
groove15.ReferenceAxis = (sketch19, ["Axis0"])
groove15.Angle = 360

sketch20 = body.newObject("Sketcher::SketchObject", "Sketch019")
sketch20.AttachmentSupport = (doc.getObject("XY_Plane"), [""])
sketch20.MapMode = "FlatFace"
sketch20.AttachmentOffset = App.Placement(App.Vector(0, 0, -63), App.Rotation())
add_polygon(sketch20, [(-68.5, -19.2), (-68.5, -23.2), (-48.5, -23.2), (-50.4, -19.9), (-67.8, -19.9)])
sketch20.addGeometry(Part.LineSegment(App.Vector(-48.5, -23.2, 0), App.Vector(-68.5, -23.2, 0)), True)
sketch20.addConstraint([
    Sketcher.Constraint("Vertical", 0),
    Sketcher.Constraint("Horizontal", 1),
    Sketcher.Constraint("Horizontal", 3),
    Sketcher.Constraint("Horizontal", 5),
    Sketcher.Constraint("Coincident", 5, 1, 1, 2),
    Sketcher.Constraint("Vertical", 4, 2, 5, 2),
    Sketcher.Constraint("DistanceX", 1, 1, 1, 2, 20.0),
    Sketcher.Constraint("DistanceY", 0, 2, 0, 1, 4.0),
    Sketcher.Constraint("Angle", 2, Q("120 deg")),
    Sketcher.Constraint("Angle", 4, Q("135 deg")),
    Sketcher.Constraint("DistanceX", 0, 2, -1, 1, 68.5),
    Sketcher.Constraint("DistanceY", 0, 2, -1, 1, 23.25),
    Sketcher.Constraint("DistanceY", 2, 2, -1, 1, 19.9265),
])
groove16 = body.newObject("PartDesign::Groove", "Groove015")
groove16.Profile = sketch20
groove16.ReferenceAxis = (sketch20, ["Axis0"])
groove16.Angle = 360

sketch21 = body.newObject("Sketcher::SketchObject", "Sketch020")
sketch21.AttachmentSupport = (doc.getObject("XY_Plane"), [""])
sketch21.MapMode = "FlatFace"
sketch21.AttachmentOffset = App.Placement(App.Vector(0, 0, 37), App.Rotation())
add_polygon(sketch21, [(-68.5, 27.2), (-68.5, 23.2), (-48.5, 23.2), (-50.4, 26.6), (-67.8, 26.6)])
sketch21.addGeometry(Part.LineSegment(App.Vector(-48.5, 23.2, 0), App.Vector(-68.5, 23.2, 0)), True)
sketch21.addConstraint([
    Sketcher.Constraint("Vertical", 0),
    Sketcher.Constraint("Horizontal", 1),
    Sketcher.Constraint("Horizontal", 3),
    Sketcher.Constraint("Horizontal", 5),
    Sketcher.Constraint("Coincident", 5, 1, 1, 2),
    Sketcher.Constraint("Vertical", 4, 2, 5, 2),
    Sketcher.Constraint("DistanceX", 1, 1, 1, 2, 20.0),
    Sketcher.Constraint("DistanceY", 0, 2, 0, 1, 4.0),
    Sketcher.Constraint("Angle", 2, Q("120 deg")),
    Sketcher.Constraint("Angle", 4, Q("135 deg")),
    Sketcher.Constraint("DistanceX", 0, 2, -1, 1, 68.5),
    Sketcher.Constraint("DistanceY", -1, 1, 0, 2, 23.25),
    Sketcher.Constraint("DistanceY", -1, 1, 2, 2, 26.5735),
])
groove17 = body.newObject("PartDesign::Groove", "Groove016")
groove17.Profile = sketch21
groove17.ReferenceAxis = (sketch21, ["Axis0"])
groove17.Angle = 360

sketch22 = body.newObject("Sketcher::SketchObject", "Sketch021")
sketch22.AttachmentSupport = (doc.getObject("XY_Plane"), [""])
sketch22.MapMode = "FlatFace"
sketch22.AttachmentOffset = App.Placement(App.Vector(0, 0, 37), App.Rotation())
add_polygon(sketch22, [(-68.5, -19.2), (-68.5, -23.2), (-48.5, -23.2), (-50.4, -19.9), (-67.8, -19.9)])
sketch22.addGeometry(Part.LineSegment(App.Vector(-48.5, -23.2, 0), App.Vector(-68.5, -23.2, 0)), True)
sketch22.addConstraint([
    Sketcher.Constraint("Vertical", 0),
    Sketcher.Constraint("Horizontal", 1),
    Sketcher.Constraint("Horizontal", 3),
    Sketcher.Constraint("Horizontal", 5),
    Sketcher.Constraint("Coincident", 5, 1, 1, 2),
    Sketcher.Constraint("Vertical", 4, 2, 5, 2),
    Sketcher.Constraint("DistanceX", 1, 1, 1, 2, 20.0),
    Sketcher.Constraint("DistanceY", 0, 2, 0, 1, 4.0),
    Sketcher.Constraint("Angle", 2, Q("120 deg")),
    Sketcher.Constraint("Angle", 4, Q("135 deg")),
    Sketcher.Constraint("DistanceX", 0, 2, -1, 1, 68.5),
    Sketcher.Constraint("DistanceY", 0, 2, -1, 1, 23.25),
    Sketcher.Constraint("DistanceY", 2, 2, -1, 1, 19.9265),
])
groove18 = body.newObject("PartDesign::Groove", "Groove017")
groove18.Profile = sketch22
groove18.ReferenceAxis = (sketch22, ["Axis0"])
groove18.Angle = 360

sketch23 = body.newObject("Sketcher::SketchObject", "Sketch022")
sketch23.AttachmentSupport = (doc.getObject("XY_Plane"), [""])
sketch23.MapMode = "FlatFace"
sketch23.AttachmentOffset = App.Placement(App.Vector(0, 0, -79), App.Rotation())
sketch23.addGeometry(Part.Circle(App.Vector(52, 0, 0), App.Vector(0, 0, 1), 10), False)
sketch23.addConstraint([
    Sketcher.Constraint("PointOnObject", 0, 3, -1),
    Sketcher.Constraint("Diameter", 0, 20.0),
    Sketcher.Constraint("DistanceX", -1, 1, 0, 3, 52.0),
])
pocket1 = body.newObject("PartDesign::Pocket", "Pocket")
pocket1.Profile = sketch23
pocket1.Length = 150
pocket1.Reversed = True

sketch24 = body.newObject("Sketcher::SketchObject", "Sketch023")
sketch24.AttachmentSupport = (doc.getObject("XY_Plane"), [""])
sketch24.MapMode = "FlatFace"
sketch24.AttachmentOffset = App.Placement(App.Vector(0, 0, -79), App.Rotation())
sketch24.addGeometry(Part.Circle(App.Vector(-52, 0, 0), App.Vector(0, 0, 1), 10), False)
sketch24.addConstraint([
    Sketcher.Constraint("PointOnObject", 0, 3, -1),
    Sketcher.Constraint("Diameter", 0, 20.0),
    Sketcher.Constraint("DistanceX", 0, 3, -1, 1, 52.0),
])
pocket2 = body.newObject("PartDesign::Pocket", "Pocket001")
pocket2.Profile = sketch24
pocket2.Length = 150
pocket2.Reversed = True

sketch25 = body.newObject("Sketcher::SketchObject", "Sketch024")
sketch25.AttachmentSupport = (doc.getObject("XZ_Plane"), [""])
sketch25.MapMode = "FlatFace"
add_polygon(sketch25, [(-88.5, -99), (-88.5, 91), (88.5, 91), (88.5, -99)])
add_polygon(sketch25, [(-68.2, -18), (-68.5, -18), (-68.5, -40), (-68.2, -40), (-68.2, -52), (-68.5, -52), (-68.5, -79), (68.2, -79), (68.2, -40), (68.5, -40), (68.5, -18), (68.2, -18), (68.2, 9), (68.5, 9), (68.5, 31), (68.2, 31), (68.2, 71), (-68.2, 71), (-68.2, 47), (-68.5, 47), (-68.5, 9), (-68.2, 9)])
sketch25.addConstraint([
    Sketcher.Constraint("Vertical", 0),
    Sketcher.Constraint("Horizontal", 1),
    Sketcher.Constraint("Vertical", 2),
    Sketcher.Constraint("Horizontal", 3),
    Sketcher.Constraint("Horizontal", 4),
    Sketcher.Constraint("Vertical", 5),
    Sketcher.Constraint("Horizontal", 6),
    Sketcher.Constraint("Vertical", 7),
    Sketcher.Constraint("Horizontal", 8),
    Sketcher.Constraint("Vertical", 9),
    Sketcher.Constraint("Horizontal", 10),
    Sketcher.Constraint("Vertical", 11),
    Sketcher.Constraint("Horizontal", 12),
    Sketcher.Constraint("Vertical", 13),
    Sketcher.Constraint("Horizontal", 14),
    Sketcher.Constraint("Vertical", 15),
    Sketcher.Constraint("Horizontal", 16),
    Sketcher.Constraint("Vertical", 17),
    Sketcher.Constraint("Horizontal", 18),
    Sketcher.Constraint("Vertical", 19),
    Sketcher.Constraint("Horizontal", 20),
    Sketcher.Constraint("Vertical", 21),
    Sketcher.Constraint("Horizontal", 22),
    Sketcher.Constraint("Vertical", 23),
    Sketcher.Constraint("Horizontal", 24),
    Sketcher.Constraint("Vertical", 25),
    Sketcher.Constraint("Symmetric", 6, 2, 11, 2, -2),
    Sketcher.Constraint("Symmetric", 4, 2, 13, 2, -2),
    Sketcher.Constraint("Symmetric", 16, 2, 23, 2, -2),
    Sketcher.Constraint("Vertical", 5, 2, 8, 2),
    Sketcher.Constraint("Vertical", 11, 2, 14, 2),
    Sketcher.Constraint("Vertical", 13, 2, 16, 2),
    Sketcher.Constraint("Vertical", 15, 2, 18, 2),
    Sketcher.Constraint("Vertical", 7, 2, 20, 2),
    Sketcher.Constraint("Vertical", 21, 2, 24, 2),
    Sketcher.Constraint("Equal", 9, 15),
    Sketcher.Constraint("Equal", 13, 17),
    Sketcher.Constraint("DistanceX", 1, 1, 1, 2, 177.0),
    Sketcher.Constraint("DistanceY", 0, 1, 0, 2, 190.0),
    Sketcher.Constraint("DistanceY", 5, 2, 5, 1, 22.0),
    Sketcher.Constraint("DistanceY", 7, 2, 7, 1, 12.0),
    Sketcher.Constraint("DistanceY", 9, 2, 9, 1, 27.0),
    Sketcher.Constraint("DistanceY", 19, 1, 19, 2, 40.0),
    Sketcher.Constraint("DistanceY", 21, 2, 21, 1, 24.0),
    Sketcher.Constraint("DistanceX", 4, 2, 4, 1, 0.3),
    Sketcher.Constraint("DistanceX", 10, 1, 10, 2, 136.7),
    Sketcher.Constraint("DistanceY", -1, 1, 0, 2, 91.0),
    Sketcher.Constraint("DistanceY", 4, 2, -1, 1, 18.0),
    Sketcher.Constraint("DistanceX", 3, 2, 4, 2, 20.0),
])
pocket3 = body.newObject("PartDesign::Pocket", "Pocket002")
pocket3.Profile = sketch25
pocket3.Type = "ThroughAll"
pocket3.Midplane = True

sketch26 = body.newObject("Sketcher::SketchObject", "Sketch025")
sketch26.AttachmentSupport = (doc.getObject("XZ_Plane"), [""])
sketch26.MapMode = "FlatFace"
sketch26.AttachmentOffset = App.Placement(App.Vector(0, 0, -35), App.Rotation())
sketch26.addGeometry([
    Part.Circle(App.Vector(-42.5, -42.7, 0), App.Vector(0, 0, 1), 4),
    Part.Circle(App.Vector(42.5, 33.8, 0), App.Vector(0, 0, 1), 4),
], False)
sketch26.addConstraint([
    Sketcher.Constraint("Equal", 0, 1),
    Sketcher.Constraint("Diameter", 0, 8.0),
    Sketcher.Constraint("DistanceX", 0, 3, 1, 3, 85.0),
    Sketcher.Constraint("DistanceX", 0, 3, -1, 1, 42.5),
    Sketcher.Constraint("DistanceY", 0, 3, -1, 1, 42.7),
    Sketcher.Constraint("DistanceY", -1, 1, 1, 3, 33.8),
])
pocket4 = body.newObject("PartDesign::Pocket", "Pocket003")
pocket4.Profile = sketch26
pocket4.Length = 17.5
pocket4.Reversed = True

sketch27 = body.newObject("Sketcher::SketchObject", "Sketch026")
sketch27.AttachmentSupport = (doc.getObject("XZ_Plane"), [""])
sketch27.MapMode = "FlatFace"
sketch27.AttachmentOffset = App.Placement(App.Vector(0, 0, -35), App.Rotation())
sketch27.addGeometry([
    Part.Circle(App.Vector(-42.5, -4.2, 0), App.Vector(0, 0, 1), 3.4),
    Part.Circle(App.Vector(42.5, -4.2, 0), App.Vector(0, 0, 1), 3.4),
], False)
sketch27.addConstraint([
    Sketcher.Constraint("Equal", 0, 1),
    Sketcher.Constraint("Symmetric", 0, 3, 1, 3, -2),
    Sketcher.Constraint("Diameter", 0, 6.8),
    Sketcher.Constraint("DistanceX", 0, 3, 1, 3, 85.0),
    Sketcher.Constraint("DistanceY", 0, 3, -1, 1, 4.2),
])
doc.recompute()
hole4 = body.newObject("PartDesign::Hole", "Hole003")
hole4.Profile = sketch27
hole4.ThreadType = "None"
hole4.Diameter = 6.8
hole4.DepthType = "Dimension"
hole4.Depth = 19.75
hole4.DrillPoint = "Angled"
hole4.DrillPointAngle = 118
hole4.Reversed = True

doc.recompute()
